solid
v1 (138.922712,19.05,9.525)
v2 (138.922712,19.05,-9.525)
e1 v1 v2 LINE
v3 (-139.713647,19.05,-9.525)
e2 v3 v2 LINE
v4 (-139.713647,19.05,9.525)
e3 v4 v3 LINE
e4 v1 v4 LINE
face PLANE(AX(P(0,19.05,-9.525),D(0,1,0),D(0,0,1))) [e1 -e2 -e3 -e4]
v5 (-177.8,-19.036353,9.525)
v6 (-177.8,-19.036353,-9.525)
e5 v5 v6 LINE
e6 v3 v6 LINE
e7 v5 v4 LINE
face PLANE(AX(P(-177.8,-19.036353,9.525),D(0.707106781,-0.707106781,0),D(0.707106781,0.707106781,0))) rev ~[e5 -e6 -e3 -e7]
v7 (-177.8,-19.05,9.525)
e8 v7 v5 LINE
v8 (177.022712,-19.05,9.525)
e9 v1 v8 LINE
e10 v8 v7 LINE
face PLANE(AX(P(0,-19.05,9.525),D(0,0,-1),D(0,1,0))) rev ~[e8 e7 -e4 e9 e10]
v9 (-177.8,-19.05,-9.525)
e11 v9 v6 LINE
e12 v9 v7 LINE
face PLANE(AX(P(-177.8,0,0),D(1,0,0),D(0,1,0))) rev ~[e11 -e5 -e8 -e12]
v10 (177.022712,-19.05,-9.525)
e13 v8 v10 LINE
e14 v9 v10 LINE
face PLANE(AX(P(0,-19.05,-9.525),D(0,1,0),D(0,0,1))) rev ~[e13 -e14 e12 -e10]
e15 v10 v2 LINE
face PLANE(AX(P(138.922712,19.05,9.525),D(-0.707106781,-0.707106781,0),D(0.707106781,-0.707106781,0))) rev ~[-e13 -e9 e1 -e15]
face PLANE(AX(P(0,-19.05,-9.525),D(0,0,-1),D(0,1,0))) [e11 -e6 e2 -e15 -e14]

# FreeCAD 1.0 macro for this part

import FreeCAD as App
import Part
import Sketcher
Q = App.Units.Quantity

doc = App.newDocument("Part")
body = doc.addObject("PartDesign::Body", "Body")

# Sketch on YZ plane
sketch1 = body.newObject("Sketcher::SketchObject", "Sketch")
sketch1.AttachmentSupport = (doc.getObject("YZ_Plane"), [""])
sketch1.MapMode = "FlatFace"
sketch1.addGeometry([
    Part.LineSegment(App.Vector(-19, 10, 0), App.Vector(-19, -10, 0)),
    Part.LineSegment(App.Vector(-19, -10, 0), App.Vector(19, -10, 0)),
    Part.LineSegment(App.Vector(19, -10, 0), App.Vector(19, 10, 0)),
    Part.LineSegment(App.Vector(19, 10, 0), App.Vector(-19, 10, 0)),
], False)
sketch1.addConstraint([
    Sketcher.Constraint("Coincident", 0, 2, 1, 1),
    Sketcher.Constraint("Coincident", 1, 2, 2, 1),
    Sketcher.Constraint("Coincident", 2, 2, 3, 1),
    Sketcher.Constraint("Coincident", 3, 2, 0, 1),
    Sketcher.Constraint("Vertical", 0),
    Sketcher.Constraint("Horizontal", 1),
    Sketcher.Constraint("Vertical", 2),
    Sketcher.Constraint("Horizontal", 3),
    Sketcher.Constraint("Symmetric", 0, 2, 2, 2, -1, 1),
    Sketcher.Constraint("DistanceX", 1, 1, 1, 2, Q("1.5 in")),
    Sketcher.Constraint("DistanceY", 0, 2, 0, 1, Q("0.75 in")),
])
pad1 = body.newObject("PartDesign::Pad", "Pad")
pad1.Profile = sketch1
pad1.Length = Q("14 in")
pad1.Midplane = True

# Sketch on XY plane
sketch2 = body.newObject("Sketcher::SketchObject", "Sketch001")
sketch2.AttachmentSupport = (doc.getObject("XY_Plane"), [""])
sketch2.MapMode = "FlatFace"
sketch2.AttachmentOffset = App.Placement(App.Vector(0, 0, 0.375 * 25.4), App.Rotation())
sketch2.addGeometry([
    Part.LineSegment(App.Vector(-178, 19, 0), App.Vector(-178, -19, 0)),
    Part.LineSegment(App.Vector(-178, -19, 0), App.Vector(-140, 19, 0)),
    Part.LineSegment(App.Vector(-140, 19, 0), App.Vector(-178, 19, 0)),
], False)
sketch2.addConstraint([
    Sketcher.Constraint("Coincident", 0, 2, 1, 1),
    Sketcher.Constraint("Coincident", 1, 2, 2, 1),
    Sketcher.Constraint("Coincident", 2, 2, 0, 1),
    Sketcher.Constraint("Vertical", 0),
    Sketcher.Constraint("Horizontal", 2),
    Sketcher.Constraint("Equal", 2, 0),
    Sketcher.Constraint("DistanceX", 0, 2, -1, 1, Q("7 in")),
    Sketcher.Constraint("DistanceY", -1, 1, 1, 2, Q("0.75 in")),
    Sketcher.Constraint("DistanceX", 2, 2, 2, 1, 38.086353),
])
pocket1 = body.newObject("PartDesign::Pocket", "Pocket")
pocket1.Profile = sketch2
pocket1.Length = Q("2 in")

# Sketch on XY plane
sketch3 = body.newObject("Sketcher::SketchObject", "Sketch002")
sketch3.AttachmentSupport = (doc.getObject("XY_Plane"), [""])
sketch3.MapMode = "FlatFace"
sketch3.AttachmentOffset = App.Placement(App.Vector(0, 0, 0.375 * 25.4), App.Rotation())
sketch3.addGeometry([
    Part.LineSegment(App.Vector(138.9, 19.1, 0), App.Vector(177, -19.1, 0)),
    Part.LineSegment(App.Vector(177, -19.1, 0), App.Vector(177.8, -19.1, 0)),
    Part.LineSegment(App.Vector(177.8, -19.1, 0), App.Vector(177.8, 19.1, 0)),
    Part.LineSegment(App.Vector(177.8, 19.1, 0), App.Vector(138.9, 19.1, 0)),
], False)
sketch3.addConstraint([
    Sketcher.Constraint("Coincident", 0, 2, 1, 1),
    Sketcher.Constraint("Coincident", 1, 2, 2, 1),
    Sketcher.Constraint("Coincident", 2, 2, 3, 1),
    Sketcher.Constraint("Coincident", 3, 2, 0, 1),
    Sketcher.Constraint("Horizontal", 1),
    Sketcher.Constraint("Vertical", 2),
    Sketcher.Constraint("Horizontal", 3),
    Sketcher.Constraint("DistanceY", 2, 1, 2, 2, Q("1.5 in")),
    Sketcher.Constraint("DistanceX", -1, 1, 1, 2, Q("7 in")),
    Sketcher.Constraint("Angle", 0, Q("-45 deg")),
    Sketcher.Constraint("DistanceY", 0, 2, -1, 1, Q("0.75 in")),
    Sketcher.Constraint("DistanceX", 1, 1, 1, 2, 0.777288),
])
pocket2 = body.newObject("PartDesign::Pocket", "Pocket001")
pocket2.Profile = sketch3
pocket2.Length = Q("2 in")

doc.recompute()
